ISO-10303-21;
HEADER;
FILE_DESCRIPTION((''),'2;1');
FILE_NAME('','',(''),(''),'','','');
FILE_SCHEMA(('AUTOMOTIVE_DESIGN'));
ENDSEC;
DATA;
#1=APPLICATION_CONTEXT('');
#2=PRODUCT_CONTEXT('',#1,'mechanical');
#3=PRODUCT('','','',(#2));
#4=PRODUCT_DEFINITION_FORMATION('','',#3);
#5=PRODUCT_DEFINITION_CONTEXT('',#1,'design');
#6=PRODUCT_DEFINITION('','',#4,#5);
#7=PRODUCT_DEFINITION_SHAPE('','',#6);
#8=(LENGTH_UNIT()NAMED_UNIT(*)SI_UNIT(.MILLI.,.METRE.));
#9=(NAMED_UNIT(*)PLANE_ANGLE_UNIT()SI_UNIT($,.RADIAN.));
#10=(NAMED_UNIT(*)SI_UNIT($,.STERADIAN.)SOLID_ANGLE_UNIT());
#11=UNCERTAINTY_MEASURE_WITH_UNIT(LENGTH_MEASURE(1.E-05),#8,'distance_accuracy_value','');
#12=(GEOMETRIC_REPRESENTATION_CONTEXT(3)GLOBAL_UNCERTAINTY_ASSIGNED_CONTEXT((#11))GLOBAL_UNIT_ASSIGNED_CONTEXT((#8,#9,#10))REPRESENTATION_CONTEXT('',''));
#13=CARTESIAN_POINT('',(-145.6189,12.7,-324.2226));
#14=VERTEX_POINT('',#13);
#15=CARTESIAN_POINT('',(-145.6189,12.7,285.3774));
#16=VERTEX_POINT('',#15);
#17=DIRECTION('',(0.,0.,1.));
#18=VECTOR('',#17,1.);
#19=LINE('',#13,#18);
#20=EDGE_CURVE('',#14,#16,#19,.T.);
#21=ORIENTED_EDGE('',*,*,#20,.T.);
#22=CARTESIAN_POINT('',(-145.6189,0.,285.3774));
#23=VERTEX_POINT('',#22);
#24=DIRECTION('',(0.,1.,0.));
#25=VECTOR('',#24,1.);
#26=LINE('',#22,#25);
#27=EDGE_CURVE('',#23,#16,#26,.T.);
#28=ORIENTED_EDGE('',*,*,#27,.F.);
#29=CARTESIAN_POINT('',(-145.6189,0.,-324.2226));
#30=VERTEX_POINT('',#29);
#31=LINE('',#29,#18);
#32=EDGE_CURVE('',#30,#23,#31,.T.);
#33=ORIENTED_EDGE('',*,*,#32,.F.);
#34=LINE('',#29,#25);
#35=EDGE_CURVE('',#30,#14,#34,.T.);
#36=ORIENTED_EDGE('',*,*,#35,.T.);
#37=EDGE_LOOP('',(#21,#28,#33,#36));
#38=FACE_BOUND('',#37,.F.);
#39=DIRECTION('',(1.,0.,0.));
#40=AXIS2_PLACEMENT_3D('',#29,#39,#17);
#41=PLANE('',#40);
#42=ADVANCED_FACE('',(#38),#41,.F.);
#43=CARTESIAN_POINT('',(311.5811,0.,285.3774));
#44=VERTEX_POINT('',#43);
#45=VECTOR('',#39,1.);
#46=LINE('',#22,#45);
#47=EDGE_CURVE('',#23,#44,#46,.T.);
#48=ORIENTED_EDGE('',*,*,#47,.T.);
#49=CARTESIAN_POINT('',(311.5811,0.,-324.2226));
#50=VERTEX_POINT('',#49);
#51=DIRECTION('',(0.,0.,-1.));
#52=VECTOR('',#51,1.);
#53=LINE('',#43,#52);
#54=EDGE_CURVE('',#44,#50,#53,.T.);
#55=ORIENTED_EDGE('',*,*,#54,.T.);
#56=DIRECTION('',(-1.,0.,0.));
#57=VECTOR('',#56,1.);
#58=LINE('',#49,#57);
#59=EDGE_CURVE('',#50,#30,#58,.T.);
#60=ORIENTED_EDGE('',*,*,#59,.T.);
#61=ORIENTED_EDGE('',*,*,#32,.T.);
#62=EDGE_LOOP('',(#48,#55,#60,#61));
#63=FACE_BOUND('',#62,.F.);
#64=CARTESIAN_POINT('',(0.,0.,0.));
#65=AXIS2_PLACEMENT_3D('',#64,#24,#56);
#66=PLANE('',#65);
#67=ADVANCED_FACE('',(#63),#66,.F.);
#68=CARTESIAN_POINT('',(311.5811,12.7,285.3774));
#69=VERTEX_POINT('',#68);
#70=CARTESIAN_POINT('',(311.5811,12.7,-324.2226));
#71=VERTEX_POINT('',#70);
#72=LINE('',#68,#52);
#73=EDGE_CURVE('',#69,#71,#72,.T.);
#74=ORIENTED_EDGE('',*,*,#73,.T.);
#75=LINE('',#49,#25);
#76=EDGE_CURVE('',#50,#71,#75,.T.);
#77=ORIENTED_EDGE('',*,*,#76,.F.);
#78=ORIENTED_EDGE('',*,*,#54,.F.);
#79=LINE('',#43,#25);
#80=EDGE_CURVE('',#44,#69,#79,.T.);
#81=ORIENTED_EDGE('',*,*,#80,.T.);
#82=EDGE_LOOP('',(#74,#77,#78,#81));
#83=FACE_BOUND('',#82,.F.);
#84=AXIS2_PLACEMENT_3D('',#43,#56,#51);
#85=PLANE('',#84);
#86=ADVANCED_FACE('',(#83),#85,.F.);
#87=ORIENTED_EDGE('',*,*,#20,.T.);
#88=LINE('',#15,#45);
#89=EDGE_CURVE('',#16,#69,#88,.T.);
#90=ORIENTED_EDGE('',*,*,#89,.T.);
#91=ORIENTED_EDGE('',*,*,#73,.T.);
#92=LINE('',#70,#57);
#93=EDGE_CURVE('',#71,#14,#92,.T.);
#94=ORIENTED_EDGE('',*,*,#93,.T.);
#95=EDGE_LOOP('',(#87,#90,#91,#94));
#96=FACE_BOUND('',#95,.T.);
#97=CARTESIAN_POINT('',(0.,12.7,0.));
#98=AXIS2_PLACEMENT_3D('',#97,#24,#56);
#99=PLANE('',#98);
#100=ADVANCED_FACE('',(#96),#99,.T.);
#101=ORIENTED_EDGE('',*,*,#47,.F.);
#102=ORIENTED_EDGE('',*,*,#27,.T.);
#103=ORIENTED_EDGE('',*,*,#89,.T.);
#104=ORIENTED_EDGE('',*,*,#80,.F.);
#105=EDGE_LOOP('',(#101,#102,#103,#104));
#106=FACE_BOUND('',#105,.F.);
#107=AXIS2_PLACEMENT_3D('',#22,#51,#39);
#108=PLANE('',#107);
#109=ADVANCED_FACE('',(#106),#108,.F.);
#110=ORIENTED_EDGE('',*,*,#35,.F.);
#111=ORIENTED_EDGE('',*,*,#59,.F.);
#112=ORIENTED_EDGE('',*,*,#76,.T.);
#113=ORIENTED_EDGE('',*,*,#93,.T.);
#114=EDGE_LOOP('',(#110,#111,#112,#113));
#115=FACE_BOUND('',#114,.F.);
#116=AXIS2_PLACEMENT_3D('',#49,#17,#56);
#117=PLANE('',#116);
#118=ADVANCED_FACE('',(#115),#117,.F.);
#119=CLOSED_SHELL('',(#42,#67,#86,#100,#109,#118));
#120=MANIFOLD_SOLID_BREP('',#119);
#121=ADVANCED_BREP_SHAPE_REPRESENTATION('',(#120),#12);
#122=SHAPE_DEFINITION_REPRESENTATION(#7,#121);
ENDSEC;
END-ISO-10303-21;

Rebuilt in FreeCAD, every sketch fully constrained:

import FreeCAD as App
import Part
import Sketcher
from FreeCAD import Vector
Q = App.Units.Quantity

doc = App.newDocument("Part")
body = doc.addObject("PartDesign::Body", "Body")

# Sketch on XZ plane
sketch1 = body.newObject("Sketcher::SketchObject", "Sketch")
sketch1.AttachmentSupport = (doc.getObject("XZ_Plane"), [""])
sketch1.MapMode = "FlatFace"
sketch1.addGeometry([
    Part.LineSegment(Vector(-146, -324, 0), Vector(-146, 285, 0)),
    Part.LineSegment(Vector(-146, 285, 0), Vector(312, 285, 0)),
    Part.LineSegment(Vector(312, 285, 0), Vector(312, -324, 0)),
    Part.LineSegment(Vector(312, -324, 0), Vector(-146, -324, 0)),
], False)
sketch1.addConstraint([
    Sketcher.Constraint("Coincident", 0, 2, 1, 1),
    Sketcher.Constraint("Coincident", 1, 2, 2, 1),
    Sketcher.Constraint("Coincident", 2, 2, 3, 1),
    Sketcher.Constraint("Coincident", 3, 2, 0, 1),
    Sketcher.Constraint("Vertical", 0),
    Sketcher.Constraint("Horizontal", 1),
    Sketcher.Constraint("Vertical", 2),
    Sketcher.Constraint("Horizontal", 3),
    Sketcher.Constraint("DistanceX", 1, 1, 1, 2, Q("18 in")),
    Sketcher.Constraint("DistanceY", 0, 1, 0, 2, Q("24 in")),
    Sketcher.Constraint("DistanceX", 0, 2, -1, 1, 145.619),
    Sketcher.Constraint("DistanceY", -1, 1, 0, 2, 285.3774),
])
pad1 = body.newObject("PartDesign::Pad", "Pad")
pad1.Profile = sketch1
pad1.Length = Q("0.5 in")
pad1.Reversed = True

doc.recompute()
